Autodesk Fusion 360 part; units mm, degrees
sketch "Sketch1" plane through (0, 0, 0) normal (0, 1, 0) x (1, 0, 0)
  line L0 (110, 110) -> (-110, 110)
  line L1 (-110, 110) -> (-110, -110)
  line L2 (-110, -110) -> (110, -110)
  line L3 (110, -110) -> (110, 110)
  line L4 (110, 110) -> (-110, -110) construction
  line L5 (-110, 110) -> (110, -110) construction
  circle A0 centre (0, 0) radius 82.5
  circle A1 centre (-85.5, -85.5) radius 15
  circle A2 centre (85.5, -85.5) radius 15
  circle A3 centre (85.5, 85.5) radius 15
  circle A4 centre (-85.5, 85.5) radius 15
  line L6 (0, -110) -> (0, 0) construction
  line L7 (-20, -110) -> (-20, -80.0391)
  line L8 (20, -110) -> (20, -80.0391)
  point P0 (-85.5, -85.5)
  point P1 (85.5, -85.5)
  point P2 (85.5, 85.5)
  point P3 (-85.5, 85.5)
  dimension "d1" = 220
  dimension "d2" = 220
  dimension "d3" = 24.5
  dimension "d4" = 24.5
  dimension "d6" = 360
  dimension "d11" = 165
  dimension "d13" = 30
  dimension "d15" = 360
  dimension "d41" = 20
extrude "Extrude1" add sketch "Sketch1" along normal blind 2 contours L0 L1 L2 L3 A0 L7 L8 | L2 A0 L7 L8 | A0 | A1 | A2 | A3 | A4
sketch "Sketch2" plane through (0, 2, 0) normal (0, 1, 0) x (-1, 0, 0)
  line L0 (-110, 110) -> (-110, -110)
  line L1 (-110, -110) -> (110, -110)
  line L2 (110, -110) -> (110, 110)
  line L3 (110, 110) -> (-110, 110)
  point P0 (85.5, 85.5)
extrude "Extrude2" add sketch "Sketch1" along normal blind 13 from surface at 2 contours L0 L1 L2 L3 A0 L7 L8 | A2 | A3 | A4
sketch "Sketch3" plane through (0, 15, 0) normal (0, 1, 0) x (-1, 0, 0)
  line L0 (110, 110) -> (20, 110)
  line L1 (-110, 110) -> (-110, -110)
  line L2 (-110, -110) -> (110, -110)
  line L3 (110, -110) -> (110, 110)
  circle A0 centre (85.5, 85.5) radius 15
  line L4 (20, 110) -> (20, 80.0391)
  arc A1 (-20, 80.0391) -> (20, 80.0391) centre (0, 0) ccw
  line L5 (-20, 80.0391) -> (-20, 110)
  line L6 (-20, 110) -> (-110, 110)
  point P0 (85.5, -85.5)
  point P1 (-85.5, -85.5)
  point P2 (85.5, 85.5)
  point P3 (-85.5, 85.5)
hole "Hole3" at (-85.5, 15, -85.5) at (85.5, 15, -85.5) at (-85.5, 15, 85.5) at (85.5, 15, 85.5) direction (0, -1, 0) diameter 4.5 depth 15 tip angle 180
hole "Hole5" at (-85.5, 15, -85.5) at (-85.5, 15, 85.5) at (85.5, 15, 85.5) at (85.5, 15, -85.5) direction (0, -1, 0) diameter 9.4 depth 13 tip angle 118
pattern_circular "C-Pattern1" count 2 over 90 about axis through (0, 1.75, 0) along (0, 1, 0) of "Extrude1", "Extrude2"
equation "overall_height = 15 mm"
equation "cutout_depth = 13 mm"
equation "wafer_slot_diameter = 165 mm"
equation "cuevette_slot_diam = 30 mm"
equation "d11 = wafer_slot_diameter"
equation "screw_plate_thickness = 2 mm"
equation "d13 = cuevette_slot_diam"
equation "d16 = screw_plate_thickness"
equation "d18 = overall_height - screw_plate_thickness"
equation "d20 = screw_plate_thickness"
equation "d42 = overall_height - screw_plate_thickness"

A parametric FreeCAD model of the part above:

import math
import FreeCAD as App
import Part
import Sketcher
Q = App.Units.Quantity

doc = App.newDocument("Part")
params = doc.addObject("Spreadsheet::Sheet", "Params")
for row, (alias, value) in enumerate([
    ("sketch1_width", "220 mm"),
    ("pad1_length", "2 mm"),
    ("sketch2_diameter", "30 mm"),
    ("sketch2_radius", "82.5 mm"),
    ("sketch2_width", "220 mm"),
    ("pad2_length", "13 mm"),
    ("sketch3_diameter", "4.5 mm"),
    ("hole_diameter", "4.5 mm"),
    ("hole_depth", "15 mm"),
    ("sketch4_diameter", "9.4 mm"),
    ("hole2_diameter", "9.4 mm"),
    ("hole2_depth", "13 mm"),
], start=1):
    params.set(f"A{row}", alias)
    params.set(f"B{row}", "=" + value)
    params.setAlias(f"B{row}", alias)

body = doc.addObject("PartDesign::Body", "Body")

# Sketch on XZ plane
sketch1 = body.newObject("Sketcher::SketchObject", "Sketch")
sketch1.AttachmentSupport = (doc.getObject("XZ_Plane"), [""])
sketch1.MapMode = "FlatFace"
sketch1.addGeometry(Part.LineSegment(App.Vector(110, 110, 0), App.Vector(110, -110, 0)), False)
sketch1.addGeometry(Part.LineSegment(App.Vector(110, -110, 0), App.Vector(-110, -110, 0)), False)
sketch1.addGeometry(Part.LineSegment(App.Vector(-110, -110, 0), App.Vector(-110, 110, 0)), False)
sketch1.addGeometry(Part.LineSegment(App.Vector(-110, 110, 0), App.Vector(110, 110, 0)), False)
sketch1.addConstraint(Sketcher.Constraint("Coincident", 0, 2, 1, 1))
sketch1.addConstraint(Sketcher.Constraint("Coincident", 1, 2, 2, 1))
sketch1.addConstraint(Sketcher.Constraint("Coincident", 2, 2, 3, 1))
sketch1.addConstraint(Sketcher.Constraint("Coincident", 3, 2, 0, 1))
sketch1.addConstraint(Sketcher.Constraint("Vertical", 0))
sketch1.addConstraint(Sketcher.Constraint("Horizontal", 1))
sketch1.addConstraint(Sketcher.Constraint("Vertical", 2))
sketch1.addConstraint(Sketcher.Constraint("Horizontal", 3))
sketch1.addConstraint(Sketcher.Constraint("Symmetric", 0, 2, 2, 2, -1, 1))
sketch1.addConstraint(Sketcher.Constraint("Equal", 3, 0))
sketch1.addConstraint(Sketcher.Constraint("DistanceX", 1, 2, 1, 1, Q("220 mm")))
sketch1.setExpression("Constraints[10]", "Params.sketch1_width")
pad1 = body.newObject("PartDesign::Pad", "Pad")
pad1.Profile = sketch1
pad1.setExpression("Length", "Params.pad1_length")
pad1.Reversed = True

# Sketch on XZ plane
sketch2 = body.newObject("Sketcher::SketchObject", "Sketch001")
sketch2.AttachmentSupport = (doc.getObject("XZ_Plane"), [""])
sketch2.MapMode = "FlatFace"
sketch2.AttachmentOffset = App.Placement(App.Vector(0, 0, -2), App.Rotation())
sketch2.addGeometry(Part.LineSegment(App.Vector(110, 110, 0), App.Vector(110, -110, 0)), False)
sketch2.addGeometry(Part.LineSegment(App.Vector(110, -110, 0), App.Vector(-110, -110, 0)), False)
sketch2.addGeometry(Part.LineSegment(App.Vector(-110, -110, 0), App.Vector(-110, 110, 0)), False)
sketch2.addGeometry(Part.LineSegment(App.Vector(-110, 110, 0), App.Vector(-20, 110, 0)), False)
sketch2.addGeometry(Part.LineSegment(App.Vector(-20, 110, 0), App.Vector(-20, 80, 0)), False)
sketch2.addGeometry(Part.ArcOfCircle(Part.Circle(App.Vector(0, 0, 0), App.Vector(0, 0, 1), 82), math.radians(104), math.radians(436)), False)
sketch2.addGeometry(Part.LineSegment(App.Vector(20, 80, 0), App.Vector(20, 110, 0)), False)
sketch2.addGeometry(Part.LineSegment(App.Vector(20, 110, 0), App.Vector(110, 110, 0)), False)
sketch2.addGeometry(Part.Circle(App.Vector(-86, 86, 0), App.Vector(0, 0, 1), 15), False)
sketch2.addConstraint(Sketcher.Constraint("Coincident", 0, 2, 1, 1))
sketch2.addConstraint(Sketcher.Constraint("Coincident", 1, 2, 2, 1))
sketch2.addConstraint(Sketcher.Constraint("Coincident", 2, 2, 3, 1))
sketch2.addConstraint(Sketcher.Constraint("Coincident", 3, 2, 4, 1))
sketch2.addConstraint(Sketcher.Constraint("Coincident", 4, 2, 5, 1))
sketch2.addConstraint(Sketcher.Constraint("Coincident", 5, 2, 6, 1))
sketch2.addConstraint(Sketcher.Constraint("Coincident", 6, 2, 7, 1))
sketch2.addConstraint(Sketcher.Constraint("Coincident", 7, 2, 0, 1))
sketch2.addConstraint(Sketcher.Constraint("Vertical", 0))
sketch2.addConstraint(Sketcher.Constraint("Horizontal", 1))
sketch2.addConstraint(Sketcher.Constraint("Vertical", 2))
sketch2.addConstraint(Sketcher.Constraint("Horizontal", 3))
sketch2.addConstraint(Sketcher.Constraint("Vertical", 4))
sketch2.addConstraint(Sketcher.Constraint("Vertical", 6))
sketch2.addConstraint(Sketcher.Constraint("Horizontal", 7))
sketch2.addConstraint(Sketcher.Constraint("Coincident", 5, 3, -1, 1))
sketch2.addConstraint(Sketcher.Constraint("Symmetric", 0, 2, 2, 2, -1, 1))
sketch2.addConstraint(Sketcher.Constraint("Symmetric", 3, 2, 6, 2, -2))
sketch2.addConstraint(Sketcher.Constraint("Equal", 1, 0))
sketch2.addConstraint(Sketcher.Constraint("Diameter", 8, Q("30 mm")))
sketch2.addConstraint(Sketcher.Constraint("Radius", 5, Q("82.5 mm")))
sketch2.addConstraint(Sketcher.Constraint("DistanceX", 1, 2, 1, 1, Q("220 mm")))
sketch2.addConstraint(Sketcher.Constraint("DistanceX", 3, 2, -1, 1, Q("20 mm")))
sketch2.addConstraint(Sketcher.Constraint("DistanceX", 1, 2, 8, 3, Q("24.5 mm")))
sketch2.addConstraint(Sketcher.Constraint("DistanceY", 8, 3, 2, 2, Q("24.5 mm")))
sketch2.setExpression("Constraints[19]", "Params.sketch2_diameter")
sketch2.setExpression("Constraints[20]", "Params.sketch2_radius")
sketch2.setExpression("Constraints[21]", "Params.sketch2_width")
pad2 = body.newObject("PartDesign::Pad", "Pad001")
pad2.Profile = sketch2
pad2.setExpression("Length", "Params.pad2_length")
pad2.Reversed = True

# Sketch on XZ plane
sketch3 = body.newObject("Sketcher::SketchObject", "Sketch002")
sketch3.AttachmentSupport = (doc.getObject("XZ_Plane"), [""])
sketch3.MapMode = "FlatFace"
sketch3.AttachmentOffset = App.Placement(App.Vector(0, 0, -15), App.Rotation())
sketch3.addGeometry(Part.Circle(App.Vector(-85.5, -85.5, 0), App.Vector(0, 0, 1), 2.2), False)
sketch3.addGeometry(Part.Circle(App.Vector(85.5, -85.5, 0), App.Vector(0, 0, 1), 2.2), False)
sketch3.addGeometry(Part.Circle(App.Vector(-85.5, 85.5, 0), App.Vector(0, 0, 1), 2.2), False)
sketch3.addGeometry(Part.Circle(App.Vector(85.5, 85.5, 0), App.Vector(0, 0, 1), 2.2), False)
sketch3.addConstraint(Sketcher.Constraint("Equal", 0, 1))
sketch3.addConstraint(Sketcher.Constraint("Equal", 1, 2))
sketch3.addConstraint(Sketcher.Constraint("Equal", 2, 3))
sketch3.addConstraint(Sketcher.Constraint("Symmetric", 1, 3, 2, 3, -1, 1))
sketch3.addConstraint(Sketcher.Constraint("Symmetric", 0, 3, 3, 3, -1, 1))
sketch3.addConstraint(Sketcher.Constraint("Symmetric", 0, 3, 1, 3, -2))
sketch3.addConstraint(Sketcher.Constraint("Diameter", 0, Q("4.5 mm")))
sketch3.addConstraint(Sketcher.Constraint("DistanceX", 0, 3, 1, 3, Q("171 mm")))
sketch3.addConstraint(Sketcher.Constraint("DistanceY", 0, 3, 2, 3, Q("171 mm")))
sketch3.setExpression("Constraints[6]", "Params.sketch3_diameter")
doc.recompute()
hole = body.newObject("PartDesign::Hole", "Hole")
hole.Profile = sketch3
hole.ThreadType = "None"
hole.setExpression("Diameter", "Params.hole_diameter")
hole.DepthType = "Dimension"
hole.setExpression("Depth", "Params.hole_depth")
hole.DrillPoint = "Flat"
hole.Reversed = True

# Sketch on XZ plane
sketch4 = body.newObject("Sketcher::SketchObject", "Sketch003")
sketch4.AttachmentSupport = (doc.getObject("XZ_Plane"), [""])
sketch4.MapMode = "FlatFace"
sketch4.AttachmentOffset = App.Placement(App.Vector(0, 0, -15), App.Rotation())
sketch4.addGeometry(Part.Circle(App.Vector(-85.5, -85.5, 0), App.Vector(0, 0, 1), 4.7), False)
sketch4.addGeometry(Part.Circle(App.Vector(-85.5, 85.5, 0), App.Vector(0, 0, 1), 4.7), False)
sketch4.addGeometry(Part.Circle(App.Vector(85.5, 85.5, 0), App.Vector(0, 0, 1), 4.7), False)
sketch4.addGeometry(Part.Circle(App.Vector(85.5, -85.5, 0), App.Vector(0, 0, 1), 4.7), False)
sketch4.addConstraint(Sketcher.Constraint("Equal", 0, 1))
sketch4.addConstraint(Sketcher.Constraint("Equal", 1, 2))
sketch4.addConstraint(Sketcher.Constraint("Equal", 2, 3))
sketch4.addConstraint(Sketcher.Constraint("Symmetric", 0, 3, 2, 3, -1, 1))
sketch4.addConstraint(Sketcher.Constraint("Symmetric", 1, 3, 3, 3, -1, 1))
sketch4.addConstraint(Sketcher.Constraint("Symmetric", 1, 3, 2, 3, -2))
sketch4.addConstraint(Sketcher.Constraint("Diameter", 0, Q("9.4 mm")))
sketch4.addConstraint(Sketcher.Constraint("DistanceY", 0, 3, 1, 3, Q("171 mm")))
sketch4.addConstraint(Sketcher.Constraint("DistanceX", 1, 3, 2, 3, Q("171 mm")))
sketch4.setExpression("Constraints[6]", "Params.sketch4_diameter")
doc.recompute()
hole2 = body.newObject("PartDesign::Hole", "Hole001")
hole2.Profile = sketch4
hole2.ThreadType = "None"
hole2.setExpression("Diameter", "Params.hole2_diameter")
hole2.DepthType = "Dimension"
hole2.setExpression("Depth", "Params.hole2_depth")
hole2.DrillPoint = "Angled"
hole2.DrillPointAngle = 118
hole2.Reversed = True
doc.recompute()

polarpattern = body.newObject("PartDesign::PolarPattern", "PolarPattern")
polarpattern.Originals = [pad1, pad2]
polarpattern.Axis = (doc.getObject("Y_Axis"), [""])
polarpattern.Angle = 90
polarpattern.Occurrences = 2
body.Tip = polarpattern

doc.recompute()
